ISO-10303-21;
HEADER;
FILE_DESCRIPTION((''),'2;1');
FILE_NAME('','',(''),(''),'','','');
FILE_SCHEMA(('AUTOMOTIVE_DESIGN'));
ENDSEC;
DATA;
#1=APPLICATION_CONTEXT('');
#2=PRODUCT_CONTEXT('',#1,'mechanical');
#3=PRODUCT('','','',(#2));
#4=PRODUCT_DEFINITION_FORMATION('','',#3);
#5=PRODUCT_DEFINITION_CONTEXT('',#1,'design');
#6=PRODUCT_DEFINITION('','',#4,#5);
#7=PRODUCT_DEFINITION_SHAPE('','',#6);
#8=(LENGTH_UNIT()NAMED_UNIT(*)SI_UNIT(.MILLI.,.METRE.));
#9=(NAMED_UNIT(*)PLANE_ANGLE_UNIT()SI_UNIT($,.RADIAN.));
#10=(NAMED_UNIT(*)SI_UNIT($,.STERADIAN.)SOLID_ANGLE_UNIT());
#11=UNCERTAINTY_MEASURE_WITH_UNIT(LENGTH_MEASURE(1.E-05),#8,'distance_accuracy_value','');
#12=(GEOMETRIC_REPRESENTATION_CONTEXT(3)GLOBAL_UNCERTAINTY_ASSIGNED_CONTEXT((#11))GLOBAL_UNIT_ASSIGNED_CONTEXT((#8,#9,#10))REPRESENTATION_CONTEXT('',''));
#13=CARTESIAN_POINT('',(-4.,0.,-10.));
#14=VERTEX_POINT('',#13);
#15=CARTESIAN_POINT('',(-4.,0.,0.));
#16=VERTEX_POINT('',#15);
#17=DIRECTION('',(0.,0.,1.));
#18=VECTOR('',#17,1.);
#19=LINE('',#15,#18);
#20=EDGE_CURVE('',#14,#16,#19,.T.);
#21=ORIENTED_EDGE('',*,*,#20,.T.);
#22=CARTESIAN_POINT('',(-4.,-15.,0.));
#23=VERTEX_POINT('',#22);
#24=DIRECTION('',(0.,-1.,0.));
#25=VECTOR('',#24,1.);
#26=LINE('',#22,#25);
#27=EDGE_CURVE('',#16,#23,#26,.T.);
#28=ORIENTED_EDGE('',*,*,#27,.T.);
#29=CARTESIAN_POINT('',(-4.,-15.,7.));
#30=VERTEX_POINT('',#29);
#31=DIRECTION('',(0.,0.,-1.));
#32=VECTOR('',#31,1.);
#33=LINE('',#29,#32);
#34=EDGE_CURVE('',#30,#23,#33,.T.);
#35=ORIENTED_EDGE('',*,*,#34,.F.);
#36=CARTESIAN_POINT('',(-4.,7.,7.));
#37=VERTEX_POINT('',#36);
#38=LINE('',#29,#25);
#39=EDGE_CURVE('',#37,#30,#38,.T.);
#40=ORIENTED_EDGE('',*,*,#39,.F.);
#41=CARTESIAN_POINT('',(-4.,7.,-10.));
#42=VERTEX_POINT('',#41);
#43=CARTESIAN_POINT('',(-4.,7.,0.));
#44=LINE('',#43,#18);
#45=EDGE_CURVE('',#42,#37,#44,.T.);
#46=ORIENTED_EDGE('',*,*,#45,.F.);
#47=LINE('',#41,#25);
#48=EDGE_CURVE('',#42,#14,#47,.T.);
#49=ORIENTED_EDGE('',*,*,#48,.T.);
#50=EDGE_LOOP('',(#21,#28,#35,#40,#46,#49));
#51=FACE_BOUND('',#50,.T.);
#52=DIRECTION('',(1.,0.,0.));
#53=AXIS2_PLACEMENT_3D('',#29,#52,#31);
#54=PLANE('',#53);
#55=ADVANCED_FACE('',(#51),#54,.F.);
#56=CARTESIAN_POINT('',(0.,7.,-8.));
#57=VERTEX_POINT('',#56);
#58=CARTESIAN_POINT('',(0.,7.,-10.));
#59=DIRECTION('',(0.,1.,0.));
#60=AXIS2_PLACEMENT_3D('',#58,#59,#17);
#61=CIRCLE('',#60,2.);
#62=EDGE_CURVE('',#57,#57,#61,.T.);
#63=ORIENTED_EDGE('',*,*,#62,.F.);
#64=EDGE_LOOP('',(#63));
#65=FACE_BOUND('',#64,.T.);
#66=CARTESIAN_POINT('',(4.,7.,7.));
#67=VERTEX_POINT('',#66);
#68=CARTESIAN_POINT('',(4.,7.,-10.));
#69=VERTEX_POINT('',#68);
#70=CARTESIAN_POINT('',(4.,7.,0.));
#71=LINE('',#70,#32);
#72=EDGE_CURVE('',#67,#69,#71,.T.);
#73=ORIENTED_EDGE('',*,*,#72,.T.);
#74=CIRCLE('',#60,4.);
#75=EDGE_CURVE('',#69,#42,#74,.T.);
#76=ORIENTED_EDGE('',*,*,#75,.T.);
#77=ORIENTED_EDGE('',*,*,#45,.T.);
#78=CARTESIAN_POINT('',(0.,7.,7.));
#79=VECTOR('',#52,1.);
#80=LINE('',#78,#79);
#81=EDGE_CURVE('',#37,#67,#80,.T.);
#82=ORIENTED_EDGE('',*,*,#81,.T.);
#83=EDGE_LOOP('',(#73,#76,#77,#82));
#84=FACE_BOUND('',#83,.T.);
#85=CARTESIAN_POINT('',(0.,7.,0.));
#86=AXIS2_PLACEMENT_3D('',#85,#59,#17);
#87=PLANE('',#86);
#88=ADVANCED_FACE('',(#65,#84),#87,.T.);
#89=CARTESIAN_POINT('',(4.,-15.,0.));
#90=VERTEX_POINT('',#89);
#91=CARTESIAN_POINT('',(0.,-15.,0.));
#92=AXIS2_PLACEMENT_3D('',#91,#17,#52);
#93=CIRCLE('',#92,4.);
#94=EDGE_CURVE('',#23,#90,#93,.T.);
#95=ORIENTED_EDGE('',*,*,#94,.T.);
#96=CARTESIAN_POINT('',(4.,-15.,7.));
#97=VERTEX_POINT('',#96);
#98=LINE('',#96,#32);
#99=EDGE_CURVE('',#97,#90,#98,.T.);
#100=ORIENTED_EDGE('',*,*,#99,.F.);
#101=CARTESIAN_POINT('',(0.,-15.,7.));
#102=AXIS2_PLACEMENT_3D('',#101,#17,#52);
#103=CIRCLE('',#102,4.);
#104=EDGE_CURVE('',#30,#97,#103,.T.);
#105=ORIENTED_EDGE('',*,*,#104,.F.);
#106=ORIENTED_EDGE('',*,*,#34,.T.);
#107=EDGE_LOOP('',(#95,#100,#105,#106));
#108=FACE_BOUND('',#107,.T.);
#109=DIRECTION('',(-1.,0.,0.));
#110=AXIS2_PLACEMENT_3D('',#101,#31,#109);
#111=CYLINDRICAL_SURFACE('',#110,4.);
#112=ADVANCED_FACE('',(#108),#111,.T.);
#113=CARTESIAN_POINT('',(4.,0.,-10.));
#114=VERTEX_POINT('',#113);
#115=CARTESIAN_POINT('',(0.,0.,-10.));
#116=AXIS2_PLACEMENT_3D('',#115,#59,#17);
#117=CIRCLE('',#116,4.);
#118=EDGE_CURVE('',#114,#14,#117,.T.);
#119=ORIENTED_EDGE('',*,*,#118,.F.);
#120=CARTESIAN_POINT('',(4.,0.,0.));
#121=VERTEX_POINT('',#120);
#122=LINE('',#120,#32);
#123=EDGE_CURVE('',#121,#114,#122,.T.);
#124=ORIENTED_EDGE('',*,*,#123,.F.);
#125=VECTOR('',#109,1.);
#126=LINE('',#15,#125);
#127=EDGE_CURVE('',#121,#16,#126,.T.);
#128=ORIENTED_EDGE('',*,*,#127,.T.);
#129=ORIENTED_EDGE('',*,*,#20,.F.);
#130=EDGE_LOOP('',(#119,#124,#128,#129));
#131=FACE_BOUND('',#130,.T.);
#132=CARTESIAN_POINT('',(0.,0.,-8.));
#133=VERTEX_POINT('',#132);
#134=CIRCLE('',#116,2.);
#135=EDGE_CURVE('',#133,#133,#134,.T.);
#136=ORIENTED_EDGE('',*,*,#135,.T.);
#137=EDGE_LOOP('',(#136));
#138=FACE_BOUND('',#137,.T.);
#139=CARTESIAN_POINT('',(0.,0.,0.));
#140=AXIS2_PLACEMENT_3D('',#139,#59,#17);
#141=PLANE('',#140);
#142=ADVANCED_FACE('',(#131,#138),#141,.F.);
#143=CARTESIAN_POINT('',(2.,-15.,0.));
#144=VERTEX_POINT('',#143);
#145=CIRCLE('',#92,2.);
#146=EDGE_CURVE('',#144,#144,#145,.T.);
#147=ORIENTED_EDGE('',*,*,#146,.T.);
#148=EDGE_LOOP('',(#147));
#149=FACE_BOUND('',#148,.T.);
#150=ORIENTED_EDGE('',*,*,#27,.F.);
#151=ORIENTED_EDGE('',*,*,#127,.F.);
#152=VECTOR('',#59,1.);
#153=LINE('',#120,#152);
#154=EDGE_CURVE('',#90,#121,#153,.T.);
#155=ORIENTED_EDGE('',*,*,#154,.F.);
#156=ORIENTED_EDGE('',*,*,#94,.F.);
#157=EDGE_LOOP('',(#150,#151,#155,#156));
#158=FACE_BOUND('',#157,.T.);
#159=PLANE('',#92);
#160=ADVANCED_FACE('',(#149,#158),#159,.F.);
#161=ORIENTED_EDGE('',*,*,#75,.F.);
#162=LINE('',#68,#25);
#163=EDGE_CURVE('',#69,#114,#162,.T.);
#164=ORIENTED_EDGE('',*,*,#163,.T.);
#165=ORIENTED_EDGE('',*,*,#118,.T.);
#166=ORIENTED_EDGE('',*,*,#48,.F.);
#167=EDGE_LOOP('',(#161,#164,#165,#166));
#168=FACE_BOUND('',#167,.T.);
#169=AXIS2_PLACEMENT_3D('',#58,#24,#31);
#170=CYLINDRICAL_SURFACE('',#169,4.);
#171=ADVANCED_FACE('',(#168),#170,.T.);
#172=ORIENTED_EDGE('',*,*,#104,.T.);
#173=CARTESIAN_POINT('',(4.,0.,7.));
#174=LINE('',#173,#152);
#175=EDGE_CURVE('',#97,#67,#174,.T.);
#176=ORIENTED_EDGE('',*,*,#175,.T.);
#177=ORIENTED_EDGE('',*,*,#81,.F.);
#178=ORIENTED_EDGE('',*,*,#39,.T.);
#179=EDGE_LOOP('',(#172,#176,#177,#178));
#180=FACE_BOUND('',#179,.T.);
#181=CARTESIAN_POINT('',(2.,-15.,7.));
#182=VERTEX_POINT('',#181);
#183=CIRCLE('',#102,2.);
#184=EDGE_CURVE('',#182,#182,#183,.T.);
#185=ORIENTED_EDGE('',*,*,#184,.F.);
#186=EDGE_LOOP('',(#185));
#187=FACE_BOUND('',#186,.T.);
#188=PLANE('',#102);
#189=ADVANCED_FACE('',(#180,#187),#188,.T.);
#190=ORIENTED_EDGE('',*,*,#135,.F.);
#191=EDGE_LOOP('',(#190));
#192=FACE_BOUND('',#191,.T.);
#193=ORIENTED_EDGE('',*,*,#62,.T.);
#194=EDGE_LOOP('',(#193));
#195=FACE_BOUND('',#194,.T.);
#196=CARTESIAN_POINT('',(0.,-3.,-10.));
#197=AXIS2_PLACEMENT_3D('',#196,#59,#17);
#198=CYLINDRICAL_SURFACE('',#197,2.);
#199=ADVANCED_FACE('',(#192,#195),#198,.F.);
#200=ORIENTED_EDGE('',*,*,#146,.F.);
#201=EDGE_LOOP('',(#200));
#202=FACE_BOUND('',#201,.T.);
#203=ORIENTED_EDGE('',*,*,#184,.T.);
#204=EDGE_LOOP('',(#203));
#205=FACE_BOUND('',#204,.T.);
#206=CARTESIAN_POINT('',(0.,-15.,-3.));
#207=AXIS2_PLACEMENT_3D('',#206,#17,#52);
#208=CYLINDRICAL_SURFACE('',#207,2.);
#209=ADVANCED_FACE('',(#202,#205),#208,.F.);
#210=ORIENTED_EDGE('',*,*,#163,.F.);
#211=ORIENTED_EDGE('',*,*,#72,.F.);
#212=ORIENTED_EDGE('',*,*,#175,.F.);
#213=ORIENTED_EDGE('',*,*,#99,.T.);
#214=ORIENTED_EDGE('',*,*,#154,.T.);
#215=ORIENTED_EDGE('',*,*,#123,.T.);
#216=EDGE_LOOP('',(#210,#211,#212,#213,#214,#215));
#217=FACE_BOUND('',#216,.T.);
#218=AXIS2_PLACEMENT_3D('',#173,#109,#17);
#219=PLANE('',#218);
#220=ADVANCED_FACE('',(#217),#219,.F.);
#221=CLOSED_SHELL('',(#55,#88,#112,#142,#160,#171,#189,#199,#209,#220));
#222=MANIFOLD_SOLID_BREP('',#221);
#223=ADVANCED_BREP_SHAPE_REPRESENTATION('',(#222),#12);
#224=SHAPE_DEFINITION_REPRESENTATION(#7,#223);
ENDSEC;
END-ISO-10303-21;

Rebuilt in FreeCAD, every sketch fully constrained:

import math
import FreeCAD as App
import Part
import Sketcher
from FreeCAD import Vector
Q = App.Units.Quantity

doc = App.newDocument("Part")
body = doc.addObject("PartDesign::Body", "Body")

# Sketch on XY plane
sketch1 = body.newObject("Sketcher::SketchObject", "Sketch")
sketch1.AttachmentSupport = (doc.getObject("XY_Plane"), [""])
sketch1.MapMode = "FlatFace"
sketch1.addGeometry([
    Part.LineSegment(Vector(-4, 0, 0), Vector(-4, -15, 0)),  # 0
    Part.ArcOfCircle(Part.Circle(Vector(0, -15, 0), Vector(0, 0, 1), 4), math.radians(180), math.radians(360)),  # 1
    Part.LineSegment(Vector(4, -15, 0), Vector(4, 0, 0)),  # 2
    Part.LineSegment(Vector(4, 0, 0), Vector(-4, 0, 0)),  # 3
    Part.Circle(Vector(0, -15, 0), Vector(0, 0, 1), 1.5),  # 4
], False)
sketch1.addConstraint([
    Sketcher.Constraint("Tangent", 0, 2, 1, 1),
    Sketcher.Constraint("Tangent", 1, 2, 2, 1),
    Sketcher.Constraint("Coincident", 2, 2, 3, 1),
    Sketcher.Constraint("Coincident", 3, 2, 0, 1),
    Sketcher.Constraint("Vertical", 0),
    Sketcher.Constraint("Vertical", 2),
    Sketcher.Constraint("Horizontal", 3),
    Sketcher.Constraint("Coincident", 4, 3, 1, 3),
    Sketcher.Constraint("Symmetric", 2, 2, 3, 2, -1, 1),
    Sketcher.Constraint("Diameter", 4, Q("3 mm")),
    Sketcher.Constraint("Radius", 1, Q("4 mm")),
    Sketcher.Constraint("DistanceY", 0, 2, 0, 1, Q("15 mm")),
])
pad1 = body.newObject("PartDesign::Pad", "Pad")
pad1.Profile = sketch1
pad1.Length = 7

# Sketch on XZ plane
sketch2 = body.newObject("Sketcher::SketchObject", "Sketch001")
sketch2.AttachmentSupport = (doc.getObject("XZ_Plane"), [""])
sketch2.MapMode = "FlatFace"
sketch2.addGeometry([
    Part.LineSegment(Vector(-4, -10, 0), Vector(-4, 7, 0)),  # 0
    Part.LineSegment(Vector(-4, 7, 0), Vector(4, 7, 0)),  # 1
    Part.LineSegment(Vector(4, 7, 0), Vector(4, -10, 0)),  # 2
    Part.ArcOfCircle(Part.Circle(Vector(0, -10, 0), Vector(0, 0, 1), 4), math.radians(180), math.radians(360)),  # 3
    Part.Circle(Vector(0, -10, 0), Vector(0, 0, 1), 1.5),  # 4
], False)
sketch2.addConstraint([
    Sketcher.Constraint("Coincident", 0, 2, 1, 1),
    Sketcher.Constraint("Coincident", 1, 2, 2, 1),
    Sketcher.Constraint("Tangent", 2, 2, 3, 2),
    Sketcher.Constraint("Tangent", 3, 1, 0, 1),
    Sketcher.Constraint("Vertical", 0),
    Sketcher.Constraint("Horizontal", 1),
    Sketcher.Constraint("Vertical", 2),
    Sketcher.Constraint("Coincident", 4, 3, 3, 3),
    Sketcher.Constraint("PointOnObject", 3, 3, -2),
    Sketcher.Constraint("Diameter", 4, Q("3 mm")),
    Sketcher.Constraint("Radius", 3, Q("4 mm")),
    Sketcher.Constraint("DistanceY", 0, 1, 0, 2, Q("17 mm")),
    Sketcher.Constraint("DistanceY", 3, 3, -1, 1, Q("10 mm")),
])
pad2 = body.newObject("PartDesign::Pad", "Pad001")
pad2.Profile = sketch2
pad2.Length = 7
pad2.Reversed = True

# Sketch on XZ plane
sketch3 = body.newObject("Sketcher::SketchObject", "Sketch002")
sketch3.AttachmentSupport = (doc.getObject("XZ_Plane"), [""])
sketch3.MapMode = "FlatFace"
sketch3.AttachmentOffset = App.Placement(Vector(0, 0, -7), App.Rotation())
sketch3.addGeometry(Part.Circle(Vector(0, -10, 0), Vector(0, 0, 1), 2), False)
sketch3.addConstraint([
    Sketcher.Constraint("PointOnObject", 0, 3, -2),
    Sketcher.Constraint("Diameter", 0, Q("4 mm")),
    Sketcher.Constraint("DistanceY", 0, 3, -1, 1, Q("10 mm")),
])
pocket1 = body.newObject("PartDesign::Pocket", "Pocket")
pocket1.Profile = sketch3
pocket1.Length = 10
pocket1.Reversed = True

# Sketch on XY plane
sketch4 = body.newObject("Sketcher::SketchObject", "Sketch003")
sketch4.AttachmentSupport = (doc.getObject("XY_Plane"), [""])
sketch4.MapMode = "FlatFace"
sketch4.AttachmentOffset = App.Placement(Vector(0, 0, 7), App.Rotation())
sketch4.addGeometry(Part.Circle(Vector(0, -15, 0), Vector(0, 0, 1), 2), False)
sketch4.addConstraint([
    Sketcher.Constraint("PointOnObject", 0, 3, -2),
    Sketcher.Constraint("Diameter", 0, Q("4 mm")),
    Sketcher.Constraint("DistanceY", 0, 3, -1, 1, Q("15 mm")),
])
pocket2 = body.newObject("PartDesign::Pocket", "Pocket001")
pocket2.Profile = sketch4
pocket2.Length = 10

doc.recompute()
